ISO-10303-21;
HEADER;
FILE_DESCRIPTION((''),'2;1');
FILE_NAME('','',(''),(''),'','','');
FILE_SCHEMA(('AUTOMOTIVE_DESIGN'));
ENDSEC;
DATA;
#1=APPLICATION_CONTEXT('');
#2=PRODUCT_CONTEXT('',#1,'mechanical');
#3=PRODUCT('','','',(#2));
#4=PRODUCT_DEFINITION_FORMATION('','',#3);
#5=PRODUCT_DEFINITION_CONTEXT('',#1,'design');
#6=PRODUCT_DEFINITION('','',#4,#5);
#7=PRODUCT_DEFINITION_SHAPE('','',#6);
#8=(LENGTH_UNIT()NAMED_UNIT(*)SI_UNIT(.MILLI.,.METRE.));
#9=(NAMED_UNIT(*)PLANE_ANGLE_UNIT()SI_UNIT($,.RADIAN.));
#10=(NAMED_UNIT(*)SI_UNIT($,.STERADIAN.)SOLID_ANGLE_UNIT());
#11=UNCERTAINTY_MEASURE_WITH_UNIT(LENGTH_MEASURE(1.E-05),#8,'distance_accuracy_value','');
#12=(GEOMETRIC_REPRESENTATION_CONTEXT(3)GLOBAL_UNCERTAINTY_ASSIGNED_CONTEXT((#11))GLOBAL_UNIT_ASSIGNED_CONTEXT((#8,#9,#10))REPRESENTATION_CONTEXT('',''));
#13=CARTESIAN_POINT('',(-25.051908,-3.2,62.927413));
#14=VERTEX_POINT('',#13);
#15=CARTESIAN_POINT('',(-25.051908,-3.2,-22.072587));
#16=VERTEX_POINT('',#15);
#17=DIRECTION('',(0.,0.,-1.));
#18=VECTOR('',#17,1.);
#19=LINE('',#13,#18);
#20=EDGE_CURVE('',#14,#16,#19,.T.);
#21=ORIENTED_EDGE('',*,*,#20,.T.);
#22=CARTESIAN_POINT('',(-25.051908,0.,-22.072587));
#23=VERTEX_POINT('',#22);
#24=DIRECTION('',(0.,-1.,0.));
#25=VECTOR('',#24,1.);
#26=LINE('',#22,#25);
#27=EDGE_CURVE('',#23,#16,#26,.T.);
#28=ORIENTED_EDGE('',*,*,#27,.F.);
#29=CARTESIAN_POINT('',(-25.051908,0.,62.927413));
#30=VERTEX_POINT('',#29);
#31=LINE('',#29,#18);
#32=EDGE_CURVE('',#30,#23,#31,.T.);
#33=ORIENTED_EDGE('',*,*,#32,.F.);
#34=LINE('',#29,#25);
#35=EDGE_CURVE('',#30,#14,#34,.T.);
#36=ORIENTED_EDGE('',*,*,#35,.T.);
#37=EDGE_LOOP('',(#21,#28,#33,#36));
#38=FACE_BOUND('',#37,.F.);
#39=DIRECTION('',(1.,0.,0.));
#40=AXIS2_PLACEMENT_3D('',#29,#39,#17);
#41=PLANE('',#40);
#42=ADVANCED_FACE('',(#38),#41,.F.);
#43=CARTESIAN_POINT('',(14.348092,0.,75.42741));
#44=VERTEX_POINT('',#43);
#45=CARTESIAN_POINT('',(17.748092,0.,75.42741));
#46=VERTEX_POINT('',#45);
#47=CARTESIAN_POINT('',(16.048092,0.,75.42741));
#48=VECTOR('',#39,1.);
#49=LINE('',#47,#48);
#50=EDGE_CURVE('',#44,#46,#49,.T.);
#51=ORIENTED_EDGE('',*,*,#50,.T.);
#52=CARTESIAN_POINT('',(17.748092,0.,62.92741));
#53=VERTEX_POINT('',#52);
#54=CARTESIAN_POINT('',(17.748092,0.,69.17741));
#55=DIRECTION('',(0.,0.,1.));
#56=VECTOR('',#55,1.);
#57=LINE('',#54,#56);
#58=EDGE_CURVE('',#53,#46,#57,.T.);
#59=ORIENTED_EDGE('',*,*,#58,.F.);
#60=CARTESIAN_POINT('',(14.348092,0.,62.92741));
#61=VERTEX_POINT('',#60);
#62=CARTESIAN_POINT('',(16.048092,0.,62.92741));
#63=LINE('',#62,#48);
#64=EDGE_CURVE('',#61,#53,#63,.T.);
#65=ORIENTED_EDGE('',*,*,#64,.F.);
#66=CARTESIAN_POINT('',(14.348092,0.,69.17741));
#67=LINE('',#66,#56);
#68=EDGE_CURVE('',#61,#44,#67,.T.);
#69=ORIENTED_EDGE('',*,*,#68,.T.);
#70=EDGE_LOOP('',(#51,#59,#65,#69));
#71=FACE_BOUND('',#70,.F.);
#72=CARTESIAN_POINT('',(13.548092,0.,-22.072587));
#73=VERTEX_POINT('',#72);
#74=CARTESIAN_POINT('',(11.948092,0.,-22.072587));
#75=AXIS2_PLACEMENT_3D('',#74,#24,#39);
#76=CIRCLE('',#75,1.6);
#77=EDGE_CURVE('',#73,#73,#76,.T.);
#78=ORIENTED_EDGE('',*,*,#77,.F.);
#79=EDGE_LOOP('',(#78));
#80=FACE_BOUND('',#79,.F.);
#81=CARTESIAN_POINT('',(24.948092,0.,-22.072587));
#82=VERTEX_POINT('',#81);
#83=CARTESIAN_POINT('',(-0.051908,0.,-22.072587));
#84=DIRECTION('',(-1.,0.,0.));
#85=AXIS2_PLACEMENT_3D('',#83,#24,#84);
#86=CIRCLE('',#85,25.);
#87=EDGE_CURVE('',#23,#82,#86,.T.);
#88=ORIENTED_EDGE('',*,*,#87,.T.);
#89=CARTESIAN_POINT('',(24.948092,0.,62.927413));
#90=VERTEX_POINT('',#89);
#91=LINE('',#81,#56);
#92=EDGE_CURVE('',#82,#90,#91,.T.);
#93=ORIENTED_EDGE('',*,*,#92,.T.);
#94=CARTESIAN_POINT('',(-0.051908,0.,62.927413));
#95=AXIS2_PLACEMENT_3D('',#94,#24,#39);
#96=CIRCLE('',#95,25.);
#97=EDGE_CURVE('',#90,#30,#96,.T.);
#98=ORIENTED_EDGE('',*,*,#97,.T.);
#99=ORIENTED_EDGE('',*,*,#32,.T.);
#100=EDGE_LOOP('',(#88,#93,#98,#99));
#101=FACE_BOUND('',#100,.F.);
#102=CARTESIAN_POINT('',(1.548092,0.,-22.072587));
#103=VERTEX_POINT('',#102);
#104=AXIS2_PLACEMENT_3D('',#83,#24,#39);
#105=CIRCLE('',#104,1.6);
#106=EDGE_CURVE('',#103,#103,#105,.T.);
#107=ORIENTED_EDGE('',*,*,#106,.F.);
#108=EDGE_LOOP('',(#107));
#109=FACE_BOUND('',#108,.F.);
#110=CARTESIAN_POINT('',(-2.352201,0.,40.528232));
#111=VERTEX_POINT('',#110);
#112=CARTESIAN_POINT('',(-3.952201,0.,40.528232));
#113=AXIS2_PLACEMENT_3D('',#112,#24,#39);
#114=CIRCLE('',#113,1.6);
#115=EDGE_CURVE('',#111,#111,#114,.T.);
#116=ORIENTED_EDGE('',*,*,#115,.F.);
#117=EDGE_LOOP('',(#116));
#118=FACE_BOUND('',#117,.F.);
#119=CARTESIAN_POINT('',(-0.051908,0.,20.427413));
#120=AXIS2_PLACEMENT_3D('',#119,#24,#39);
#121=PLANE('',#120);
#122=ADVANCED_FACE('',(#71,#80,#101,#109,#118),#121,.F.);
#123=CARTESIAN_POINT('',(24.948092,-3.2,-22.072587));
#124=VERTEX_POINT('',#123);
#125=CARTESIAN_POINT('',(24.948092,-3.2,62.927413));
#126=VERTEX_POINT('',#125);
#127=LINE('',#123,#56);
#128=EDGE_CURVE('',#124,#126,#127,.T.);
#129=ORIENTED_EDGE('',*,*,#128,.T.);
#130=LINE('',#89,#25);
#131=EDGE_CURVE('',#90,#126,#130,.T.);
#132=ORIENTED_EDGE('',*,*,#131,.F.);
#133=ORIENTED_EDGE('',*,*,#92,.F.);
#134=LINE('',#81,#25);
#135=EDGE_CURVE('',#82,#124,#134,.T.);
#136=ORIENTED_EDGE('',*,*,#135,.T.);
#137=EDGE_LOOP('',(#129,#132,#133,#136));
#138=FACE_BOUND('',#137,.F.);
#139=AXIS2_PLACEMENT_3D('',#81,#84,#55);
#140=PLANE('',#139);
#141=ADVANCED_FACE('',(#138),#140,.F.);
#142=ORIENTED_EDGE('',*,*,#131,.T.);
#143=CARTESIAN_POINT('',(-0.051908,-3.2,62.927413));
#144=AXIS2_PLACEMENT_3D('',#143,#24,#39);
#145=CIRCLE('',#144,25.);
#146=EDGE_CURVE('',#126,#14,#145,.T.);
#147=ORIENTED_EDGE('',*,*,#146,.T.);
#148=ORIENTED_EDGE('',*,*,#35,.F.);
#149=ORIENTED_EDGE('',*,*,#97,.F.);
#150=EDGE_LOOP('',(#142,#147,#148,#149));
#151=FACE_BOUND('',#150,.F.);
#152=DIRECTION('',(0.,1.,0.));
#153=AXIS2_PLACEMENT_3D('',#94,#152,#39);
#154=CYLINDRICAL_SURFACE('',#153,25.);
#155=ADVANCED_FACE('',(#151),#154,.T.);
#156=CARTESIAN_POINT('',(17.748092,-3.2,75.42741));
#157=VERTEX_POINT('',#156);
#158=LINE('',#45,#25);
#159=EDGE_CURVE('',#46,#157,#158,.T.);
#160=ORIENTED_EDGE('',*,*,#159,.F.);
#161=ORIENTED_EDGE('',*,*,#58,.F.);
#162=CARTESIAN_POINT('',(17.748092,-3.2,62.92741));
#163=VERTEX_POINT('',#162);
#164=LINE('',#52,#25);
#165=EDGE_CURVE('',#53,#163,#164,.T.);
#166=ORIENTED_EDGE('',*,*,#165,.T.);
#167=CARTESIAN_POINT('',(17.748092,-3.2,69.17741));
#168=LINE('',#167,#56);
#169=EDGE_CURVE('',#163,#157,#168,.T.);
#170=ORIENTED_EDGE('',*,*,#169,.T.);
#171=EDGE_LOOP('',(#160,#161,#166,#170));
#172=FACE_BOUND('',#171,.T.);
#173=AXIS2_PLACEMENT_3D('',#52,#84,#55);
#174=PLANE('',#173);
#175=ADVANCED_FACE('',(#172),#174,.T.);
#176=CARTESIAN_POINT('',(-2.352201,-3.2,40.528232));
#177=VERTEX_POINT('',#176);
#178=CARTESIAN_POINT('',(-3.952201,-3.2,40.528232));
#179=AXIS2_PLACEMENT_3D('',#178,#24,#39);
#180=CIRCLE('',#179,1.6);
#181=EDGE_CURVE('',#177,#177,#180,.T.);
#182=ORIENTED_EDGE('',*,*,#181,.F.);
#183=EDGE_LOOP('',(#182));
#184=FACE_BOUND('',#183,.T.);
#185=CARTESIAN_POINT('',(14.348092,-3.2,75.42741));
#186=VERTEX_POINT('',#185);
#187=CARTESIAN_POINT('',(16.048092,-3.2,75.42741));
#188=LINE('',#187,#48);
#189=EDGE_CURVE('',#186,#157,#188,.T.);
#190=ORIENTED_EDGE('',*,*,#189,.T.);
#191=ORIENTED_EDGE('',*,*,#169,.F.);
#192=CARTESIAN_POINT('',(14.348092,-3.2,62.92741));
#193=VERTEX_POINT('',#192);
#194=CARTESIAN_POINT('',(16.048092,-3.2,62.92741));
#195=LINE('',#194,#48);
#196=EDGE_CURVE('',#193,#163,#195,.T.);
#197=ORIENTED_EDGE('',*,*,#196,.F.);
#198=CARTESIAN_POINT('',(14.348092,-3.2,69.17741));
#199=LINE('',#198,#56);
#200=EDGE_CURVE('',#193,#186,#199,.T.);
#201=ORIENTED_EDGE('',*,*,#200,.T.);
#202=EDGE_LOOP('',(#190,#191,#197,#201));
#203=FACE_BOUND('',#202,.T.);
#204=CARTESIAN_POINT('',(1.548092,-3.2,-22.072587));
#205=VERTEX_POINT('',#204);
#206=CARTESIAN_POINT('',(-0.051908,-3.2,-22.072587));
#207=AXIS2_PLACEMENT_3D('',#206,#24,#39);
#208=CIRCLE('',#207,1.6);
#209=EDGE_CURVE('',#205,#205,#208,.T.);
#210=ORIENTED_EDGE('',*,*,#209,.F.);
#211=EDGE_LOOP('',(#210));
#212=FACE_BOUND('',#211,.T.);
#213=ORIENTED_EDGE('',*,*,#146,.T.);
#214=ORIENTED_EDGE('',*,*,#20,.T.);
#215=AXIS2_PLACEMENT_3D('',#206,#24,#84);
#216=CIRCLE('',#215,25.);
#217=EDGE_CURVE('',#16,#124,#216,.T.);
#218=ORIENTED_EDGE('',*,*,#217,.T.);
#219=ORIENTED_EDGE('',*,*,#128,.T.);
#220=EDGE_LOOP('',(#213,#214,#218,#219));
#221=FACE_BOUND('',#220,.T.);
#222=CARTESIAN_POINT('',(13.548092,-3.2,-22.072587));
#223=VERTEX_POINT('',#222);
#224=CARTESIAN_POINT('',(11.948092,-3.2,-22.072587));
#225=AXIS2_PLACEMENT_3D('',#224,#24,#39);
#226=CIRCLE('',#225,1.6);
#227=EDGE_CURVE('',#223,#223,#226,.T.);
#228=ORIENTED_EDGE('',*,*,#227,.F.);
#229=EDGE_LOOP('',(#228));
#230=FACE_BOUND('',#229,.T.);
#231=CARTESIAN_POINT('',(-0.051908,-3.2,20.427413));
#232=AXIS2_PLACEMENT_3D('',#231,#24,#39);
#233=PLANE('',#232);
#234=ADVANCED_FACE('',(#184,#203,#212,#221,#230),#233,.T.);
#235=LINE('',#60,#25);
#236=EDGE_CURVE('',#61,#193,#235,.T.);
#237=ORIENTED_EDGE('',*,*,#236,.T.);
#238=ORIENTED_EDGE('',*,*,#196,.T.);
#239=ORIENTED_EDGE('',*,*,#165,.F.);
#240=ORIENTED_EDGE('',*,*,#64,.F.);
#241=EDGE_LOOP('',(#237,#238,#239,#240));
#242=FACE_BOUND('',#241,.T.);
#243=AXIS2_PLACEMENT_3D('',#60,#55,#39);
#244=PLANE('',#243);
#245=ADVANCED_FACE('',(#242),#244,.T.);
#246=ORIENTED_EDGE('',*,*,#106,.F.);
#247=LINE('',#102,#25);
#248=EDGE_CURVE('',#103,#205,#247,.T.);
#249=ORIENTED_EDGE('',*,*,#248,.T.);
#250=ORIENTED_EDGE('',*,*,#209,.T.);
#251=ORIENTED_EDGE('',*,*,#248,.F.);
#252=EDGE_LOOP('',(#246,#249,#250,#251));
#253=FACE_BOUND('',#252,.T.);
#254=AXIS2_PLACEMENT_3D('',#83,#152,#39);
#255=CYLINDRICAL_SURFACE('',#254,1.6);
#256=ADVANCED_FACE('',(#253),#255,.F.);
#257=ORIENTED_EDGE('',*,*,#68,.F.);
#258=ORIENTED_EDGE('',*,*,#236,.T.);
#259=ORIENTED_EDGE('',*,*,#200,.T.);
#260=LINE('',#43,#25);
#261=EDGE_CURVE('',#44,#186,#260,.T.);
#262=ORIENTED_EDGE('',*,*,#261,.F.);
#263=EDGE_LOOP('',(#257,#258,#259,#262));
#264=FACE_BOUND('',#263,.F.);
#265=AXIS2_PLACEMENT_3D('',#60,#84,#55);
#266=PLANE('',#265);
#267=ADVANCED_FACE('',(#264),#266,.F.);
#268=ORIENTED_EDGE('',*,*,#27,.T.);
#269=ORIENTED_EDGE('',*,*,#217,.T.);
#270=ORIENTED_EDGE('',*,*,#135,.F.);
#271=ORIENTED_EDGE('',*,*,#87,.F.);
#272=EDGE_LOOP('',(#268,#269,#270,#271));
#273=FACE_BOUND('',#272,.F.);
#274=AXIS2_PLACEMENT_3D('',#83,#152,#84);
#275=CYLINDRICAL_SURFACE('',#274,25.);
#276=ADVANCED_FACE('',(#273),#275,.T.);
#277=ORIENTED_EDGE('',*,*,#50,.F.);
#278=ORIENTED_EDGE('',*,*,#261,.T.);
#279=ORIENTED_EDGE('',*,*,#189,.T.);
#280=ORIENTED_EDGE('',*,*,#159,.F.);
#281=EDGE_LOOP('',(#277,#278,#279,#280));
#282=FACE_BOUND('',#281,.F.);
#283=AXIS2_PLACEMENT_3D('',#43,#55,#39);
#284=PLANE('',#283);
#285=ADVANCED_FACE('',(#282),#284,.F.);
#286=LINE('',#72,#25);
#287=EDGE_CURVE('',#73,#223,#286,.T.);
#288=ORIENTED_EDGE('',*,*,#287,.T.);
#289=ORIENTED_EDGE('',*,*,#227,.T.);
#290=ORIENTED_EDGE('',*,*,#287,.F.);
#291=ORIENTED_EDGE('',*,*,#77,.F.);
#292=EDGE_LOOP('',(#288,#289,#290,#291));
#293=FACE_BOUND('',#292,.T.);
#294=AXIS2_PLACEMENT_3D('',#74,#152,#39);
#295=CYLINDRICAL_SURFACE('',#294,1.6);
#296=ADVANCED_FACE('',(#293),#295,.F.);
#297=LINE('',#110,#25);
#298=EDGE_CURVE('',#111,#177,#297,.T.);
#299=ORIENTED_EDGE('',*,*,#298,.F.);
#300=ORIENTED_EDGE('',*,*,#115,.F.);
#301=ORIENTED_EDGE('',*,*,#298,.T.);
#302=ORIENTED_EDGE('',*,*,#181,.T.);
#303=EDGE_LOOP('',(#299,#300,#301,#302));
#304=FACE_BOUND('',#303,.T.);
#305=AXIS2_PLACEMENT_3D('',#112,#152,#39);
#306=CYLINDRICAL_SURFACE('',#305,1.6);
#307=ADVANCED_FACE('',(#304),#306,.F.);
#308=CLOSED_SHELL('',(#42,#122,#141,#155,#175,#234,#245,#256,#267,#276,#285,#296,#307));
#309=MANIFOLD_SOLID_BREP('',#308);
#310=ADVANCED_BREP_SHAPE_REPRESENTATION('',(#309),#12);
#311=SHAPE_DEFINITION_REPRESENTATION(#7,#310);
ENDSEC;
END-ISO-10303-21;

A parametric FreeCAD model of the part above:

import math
import FreeCAD as App
import Part
import Sketcher
from FreeCAD import Vector

doc = App.newDocument("Part")
body = doc.addObject("PartDesign::Body", "Body")

sketch1 = doc.addObject("Sketcher::SketchObject", "Sketch")
body.addObject(sketch1)
sketch1.AttachmentSupport = (doc.XZ_Plane, [""])
sketch1.MapMode = "FlatFace"
sketch1.addGeometry([
    Part.LineSegment(Vector(-25.1, 62.9, 0), Vector(-25.1, -22.1, 0)),
    Part.ArcOfCircle(Part.Circle(Vector(-0.1, -22.1, 0), Vector(0, 0, 1), 25), math.radians(180), math.radians(360)),
    Part.LineSegment(Vector(24.9, -22.1, 0), Vector(24.9, 62.9, 0)),
    Part.ArcOfCircle(Part.Circle(Vector(-0.1, 62.9, 0), Vector(0, 0, 1), 25), math.radians(0), math.radians(180)),
    Part.Circle(Vector(-0.1, -22.1, 0), Vector(0, 0, 1), 1.6),
    Part.Circle(Vector(11.9, -22.1, 0), Vector(0, 0, 1), 1.6),
    Part.Circle(Vector(-4, 40.5, 0), Vector(0, 0, 1), 1.6),
    Part.LineSegment(Vector(17.7, 62.9, 0), Vector(14.3, 62.9, 0)),
    Part.LineSegment(Vector(14.3, 62.9, 0), Vector(14.3, 75.4, 0)),
    Part.LineSegment(Vector(14.3, 75.4, 0), Vector(17.7, 75.4, 0)),
    Part.LineSegment(Vector(17.7, 75.4, 0), Vector(17.7, 62.9, 0)),
], False)
sketch1.addConstraint([
    Sketcher.Constraint("Tangent", 0, 2, 1, 1),
    Sketcher.Constraint("Tangent", 1, 2, 2, 1),
    Sketcher.Constraint("Tangent", 2, 2, 3, 1),
    Sketcher.Constraint("Tangent", 3, 2, 0, 1),
    Sketcher.Constraint("Coincident", 7, 2, 8, 1),
    Sketcher.Constraint("Coincident", 8, 2, 9, 1),
    Sketcher.Constraint("Coincident", 9, 2, 10, 1),
    Sketcher.Constraint("Coincident", 10, 2, 7, 1),
    Sketcher.Constraint("Vertical", 0),
    Sketcher.Constraint("Vertical", 2),
    Sketcher.Constraint("Horizontal", 7),
    Sketcher.Constraint("Vertical", 8),
    Sketcher.Constraint("Horizontal", 9),
    Sketcher.Constraint("Vertical", 10),
    Sketcher.Constraint("Coincident", 4, 3, 1, 3),
    Sketcher.Constraint("Equal", 4, 5),
    Sketcher.Constraint("Equal", 5, 6),
    Sketcher.Constraint("Horizontal", 4, 3, 5, 3),
    Sketcher.Constraint("Radius", 1, 25.0),
    Sketcher.Constraint("Diameter", 4, 3.2),
    Sketcher.Constraint("DistanceY", 0, 2, 0, 1, 85.0),
    Sketcher.Constraint("DistanceX", 7, 2, 7, 1, 3.4),
    Sketcher.Constraint("DistanceY", 8, 1, 8, 2, 12.5),
    Sketcher.Constraint("DistanceX", 1, 3, 5, 3, 12.0),
    Sketcher.Constraint("DistanceX", 7, 2, 2, 2, 10.6),
    Sketcher.Constraint("DistanceX", 6, 3, -1, 1, 3.952201),
    Sketcher.Constraint("DistanceX", 1, 3, -1, 1, 0.051908),
    Sketcher.Constraint("DistanceY", -1, 1, 7, 2, 62.92741),
    Sketcher.Constraint("DistanceY", 6, 3, 3, 3, 22.399181),
    Sketcher.Constraint("DistanceY", 1, 3, -1, 1, 22.072587),
])
pad1 = doc.addObject("PartDesign::Pad", "Pad")
body.addObject(pad1)
pad1.Profile = sketch1
pad1.Length = 3.2

doc.recompute()
